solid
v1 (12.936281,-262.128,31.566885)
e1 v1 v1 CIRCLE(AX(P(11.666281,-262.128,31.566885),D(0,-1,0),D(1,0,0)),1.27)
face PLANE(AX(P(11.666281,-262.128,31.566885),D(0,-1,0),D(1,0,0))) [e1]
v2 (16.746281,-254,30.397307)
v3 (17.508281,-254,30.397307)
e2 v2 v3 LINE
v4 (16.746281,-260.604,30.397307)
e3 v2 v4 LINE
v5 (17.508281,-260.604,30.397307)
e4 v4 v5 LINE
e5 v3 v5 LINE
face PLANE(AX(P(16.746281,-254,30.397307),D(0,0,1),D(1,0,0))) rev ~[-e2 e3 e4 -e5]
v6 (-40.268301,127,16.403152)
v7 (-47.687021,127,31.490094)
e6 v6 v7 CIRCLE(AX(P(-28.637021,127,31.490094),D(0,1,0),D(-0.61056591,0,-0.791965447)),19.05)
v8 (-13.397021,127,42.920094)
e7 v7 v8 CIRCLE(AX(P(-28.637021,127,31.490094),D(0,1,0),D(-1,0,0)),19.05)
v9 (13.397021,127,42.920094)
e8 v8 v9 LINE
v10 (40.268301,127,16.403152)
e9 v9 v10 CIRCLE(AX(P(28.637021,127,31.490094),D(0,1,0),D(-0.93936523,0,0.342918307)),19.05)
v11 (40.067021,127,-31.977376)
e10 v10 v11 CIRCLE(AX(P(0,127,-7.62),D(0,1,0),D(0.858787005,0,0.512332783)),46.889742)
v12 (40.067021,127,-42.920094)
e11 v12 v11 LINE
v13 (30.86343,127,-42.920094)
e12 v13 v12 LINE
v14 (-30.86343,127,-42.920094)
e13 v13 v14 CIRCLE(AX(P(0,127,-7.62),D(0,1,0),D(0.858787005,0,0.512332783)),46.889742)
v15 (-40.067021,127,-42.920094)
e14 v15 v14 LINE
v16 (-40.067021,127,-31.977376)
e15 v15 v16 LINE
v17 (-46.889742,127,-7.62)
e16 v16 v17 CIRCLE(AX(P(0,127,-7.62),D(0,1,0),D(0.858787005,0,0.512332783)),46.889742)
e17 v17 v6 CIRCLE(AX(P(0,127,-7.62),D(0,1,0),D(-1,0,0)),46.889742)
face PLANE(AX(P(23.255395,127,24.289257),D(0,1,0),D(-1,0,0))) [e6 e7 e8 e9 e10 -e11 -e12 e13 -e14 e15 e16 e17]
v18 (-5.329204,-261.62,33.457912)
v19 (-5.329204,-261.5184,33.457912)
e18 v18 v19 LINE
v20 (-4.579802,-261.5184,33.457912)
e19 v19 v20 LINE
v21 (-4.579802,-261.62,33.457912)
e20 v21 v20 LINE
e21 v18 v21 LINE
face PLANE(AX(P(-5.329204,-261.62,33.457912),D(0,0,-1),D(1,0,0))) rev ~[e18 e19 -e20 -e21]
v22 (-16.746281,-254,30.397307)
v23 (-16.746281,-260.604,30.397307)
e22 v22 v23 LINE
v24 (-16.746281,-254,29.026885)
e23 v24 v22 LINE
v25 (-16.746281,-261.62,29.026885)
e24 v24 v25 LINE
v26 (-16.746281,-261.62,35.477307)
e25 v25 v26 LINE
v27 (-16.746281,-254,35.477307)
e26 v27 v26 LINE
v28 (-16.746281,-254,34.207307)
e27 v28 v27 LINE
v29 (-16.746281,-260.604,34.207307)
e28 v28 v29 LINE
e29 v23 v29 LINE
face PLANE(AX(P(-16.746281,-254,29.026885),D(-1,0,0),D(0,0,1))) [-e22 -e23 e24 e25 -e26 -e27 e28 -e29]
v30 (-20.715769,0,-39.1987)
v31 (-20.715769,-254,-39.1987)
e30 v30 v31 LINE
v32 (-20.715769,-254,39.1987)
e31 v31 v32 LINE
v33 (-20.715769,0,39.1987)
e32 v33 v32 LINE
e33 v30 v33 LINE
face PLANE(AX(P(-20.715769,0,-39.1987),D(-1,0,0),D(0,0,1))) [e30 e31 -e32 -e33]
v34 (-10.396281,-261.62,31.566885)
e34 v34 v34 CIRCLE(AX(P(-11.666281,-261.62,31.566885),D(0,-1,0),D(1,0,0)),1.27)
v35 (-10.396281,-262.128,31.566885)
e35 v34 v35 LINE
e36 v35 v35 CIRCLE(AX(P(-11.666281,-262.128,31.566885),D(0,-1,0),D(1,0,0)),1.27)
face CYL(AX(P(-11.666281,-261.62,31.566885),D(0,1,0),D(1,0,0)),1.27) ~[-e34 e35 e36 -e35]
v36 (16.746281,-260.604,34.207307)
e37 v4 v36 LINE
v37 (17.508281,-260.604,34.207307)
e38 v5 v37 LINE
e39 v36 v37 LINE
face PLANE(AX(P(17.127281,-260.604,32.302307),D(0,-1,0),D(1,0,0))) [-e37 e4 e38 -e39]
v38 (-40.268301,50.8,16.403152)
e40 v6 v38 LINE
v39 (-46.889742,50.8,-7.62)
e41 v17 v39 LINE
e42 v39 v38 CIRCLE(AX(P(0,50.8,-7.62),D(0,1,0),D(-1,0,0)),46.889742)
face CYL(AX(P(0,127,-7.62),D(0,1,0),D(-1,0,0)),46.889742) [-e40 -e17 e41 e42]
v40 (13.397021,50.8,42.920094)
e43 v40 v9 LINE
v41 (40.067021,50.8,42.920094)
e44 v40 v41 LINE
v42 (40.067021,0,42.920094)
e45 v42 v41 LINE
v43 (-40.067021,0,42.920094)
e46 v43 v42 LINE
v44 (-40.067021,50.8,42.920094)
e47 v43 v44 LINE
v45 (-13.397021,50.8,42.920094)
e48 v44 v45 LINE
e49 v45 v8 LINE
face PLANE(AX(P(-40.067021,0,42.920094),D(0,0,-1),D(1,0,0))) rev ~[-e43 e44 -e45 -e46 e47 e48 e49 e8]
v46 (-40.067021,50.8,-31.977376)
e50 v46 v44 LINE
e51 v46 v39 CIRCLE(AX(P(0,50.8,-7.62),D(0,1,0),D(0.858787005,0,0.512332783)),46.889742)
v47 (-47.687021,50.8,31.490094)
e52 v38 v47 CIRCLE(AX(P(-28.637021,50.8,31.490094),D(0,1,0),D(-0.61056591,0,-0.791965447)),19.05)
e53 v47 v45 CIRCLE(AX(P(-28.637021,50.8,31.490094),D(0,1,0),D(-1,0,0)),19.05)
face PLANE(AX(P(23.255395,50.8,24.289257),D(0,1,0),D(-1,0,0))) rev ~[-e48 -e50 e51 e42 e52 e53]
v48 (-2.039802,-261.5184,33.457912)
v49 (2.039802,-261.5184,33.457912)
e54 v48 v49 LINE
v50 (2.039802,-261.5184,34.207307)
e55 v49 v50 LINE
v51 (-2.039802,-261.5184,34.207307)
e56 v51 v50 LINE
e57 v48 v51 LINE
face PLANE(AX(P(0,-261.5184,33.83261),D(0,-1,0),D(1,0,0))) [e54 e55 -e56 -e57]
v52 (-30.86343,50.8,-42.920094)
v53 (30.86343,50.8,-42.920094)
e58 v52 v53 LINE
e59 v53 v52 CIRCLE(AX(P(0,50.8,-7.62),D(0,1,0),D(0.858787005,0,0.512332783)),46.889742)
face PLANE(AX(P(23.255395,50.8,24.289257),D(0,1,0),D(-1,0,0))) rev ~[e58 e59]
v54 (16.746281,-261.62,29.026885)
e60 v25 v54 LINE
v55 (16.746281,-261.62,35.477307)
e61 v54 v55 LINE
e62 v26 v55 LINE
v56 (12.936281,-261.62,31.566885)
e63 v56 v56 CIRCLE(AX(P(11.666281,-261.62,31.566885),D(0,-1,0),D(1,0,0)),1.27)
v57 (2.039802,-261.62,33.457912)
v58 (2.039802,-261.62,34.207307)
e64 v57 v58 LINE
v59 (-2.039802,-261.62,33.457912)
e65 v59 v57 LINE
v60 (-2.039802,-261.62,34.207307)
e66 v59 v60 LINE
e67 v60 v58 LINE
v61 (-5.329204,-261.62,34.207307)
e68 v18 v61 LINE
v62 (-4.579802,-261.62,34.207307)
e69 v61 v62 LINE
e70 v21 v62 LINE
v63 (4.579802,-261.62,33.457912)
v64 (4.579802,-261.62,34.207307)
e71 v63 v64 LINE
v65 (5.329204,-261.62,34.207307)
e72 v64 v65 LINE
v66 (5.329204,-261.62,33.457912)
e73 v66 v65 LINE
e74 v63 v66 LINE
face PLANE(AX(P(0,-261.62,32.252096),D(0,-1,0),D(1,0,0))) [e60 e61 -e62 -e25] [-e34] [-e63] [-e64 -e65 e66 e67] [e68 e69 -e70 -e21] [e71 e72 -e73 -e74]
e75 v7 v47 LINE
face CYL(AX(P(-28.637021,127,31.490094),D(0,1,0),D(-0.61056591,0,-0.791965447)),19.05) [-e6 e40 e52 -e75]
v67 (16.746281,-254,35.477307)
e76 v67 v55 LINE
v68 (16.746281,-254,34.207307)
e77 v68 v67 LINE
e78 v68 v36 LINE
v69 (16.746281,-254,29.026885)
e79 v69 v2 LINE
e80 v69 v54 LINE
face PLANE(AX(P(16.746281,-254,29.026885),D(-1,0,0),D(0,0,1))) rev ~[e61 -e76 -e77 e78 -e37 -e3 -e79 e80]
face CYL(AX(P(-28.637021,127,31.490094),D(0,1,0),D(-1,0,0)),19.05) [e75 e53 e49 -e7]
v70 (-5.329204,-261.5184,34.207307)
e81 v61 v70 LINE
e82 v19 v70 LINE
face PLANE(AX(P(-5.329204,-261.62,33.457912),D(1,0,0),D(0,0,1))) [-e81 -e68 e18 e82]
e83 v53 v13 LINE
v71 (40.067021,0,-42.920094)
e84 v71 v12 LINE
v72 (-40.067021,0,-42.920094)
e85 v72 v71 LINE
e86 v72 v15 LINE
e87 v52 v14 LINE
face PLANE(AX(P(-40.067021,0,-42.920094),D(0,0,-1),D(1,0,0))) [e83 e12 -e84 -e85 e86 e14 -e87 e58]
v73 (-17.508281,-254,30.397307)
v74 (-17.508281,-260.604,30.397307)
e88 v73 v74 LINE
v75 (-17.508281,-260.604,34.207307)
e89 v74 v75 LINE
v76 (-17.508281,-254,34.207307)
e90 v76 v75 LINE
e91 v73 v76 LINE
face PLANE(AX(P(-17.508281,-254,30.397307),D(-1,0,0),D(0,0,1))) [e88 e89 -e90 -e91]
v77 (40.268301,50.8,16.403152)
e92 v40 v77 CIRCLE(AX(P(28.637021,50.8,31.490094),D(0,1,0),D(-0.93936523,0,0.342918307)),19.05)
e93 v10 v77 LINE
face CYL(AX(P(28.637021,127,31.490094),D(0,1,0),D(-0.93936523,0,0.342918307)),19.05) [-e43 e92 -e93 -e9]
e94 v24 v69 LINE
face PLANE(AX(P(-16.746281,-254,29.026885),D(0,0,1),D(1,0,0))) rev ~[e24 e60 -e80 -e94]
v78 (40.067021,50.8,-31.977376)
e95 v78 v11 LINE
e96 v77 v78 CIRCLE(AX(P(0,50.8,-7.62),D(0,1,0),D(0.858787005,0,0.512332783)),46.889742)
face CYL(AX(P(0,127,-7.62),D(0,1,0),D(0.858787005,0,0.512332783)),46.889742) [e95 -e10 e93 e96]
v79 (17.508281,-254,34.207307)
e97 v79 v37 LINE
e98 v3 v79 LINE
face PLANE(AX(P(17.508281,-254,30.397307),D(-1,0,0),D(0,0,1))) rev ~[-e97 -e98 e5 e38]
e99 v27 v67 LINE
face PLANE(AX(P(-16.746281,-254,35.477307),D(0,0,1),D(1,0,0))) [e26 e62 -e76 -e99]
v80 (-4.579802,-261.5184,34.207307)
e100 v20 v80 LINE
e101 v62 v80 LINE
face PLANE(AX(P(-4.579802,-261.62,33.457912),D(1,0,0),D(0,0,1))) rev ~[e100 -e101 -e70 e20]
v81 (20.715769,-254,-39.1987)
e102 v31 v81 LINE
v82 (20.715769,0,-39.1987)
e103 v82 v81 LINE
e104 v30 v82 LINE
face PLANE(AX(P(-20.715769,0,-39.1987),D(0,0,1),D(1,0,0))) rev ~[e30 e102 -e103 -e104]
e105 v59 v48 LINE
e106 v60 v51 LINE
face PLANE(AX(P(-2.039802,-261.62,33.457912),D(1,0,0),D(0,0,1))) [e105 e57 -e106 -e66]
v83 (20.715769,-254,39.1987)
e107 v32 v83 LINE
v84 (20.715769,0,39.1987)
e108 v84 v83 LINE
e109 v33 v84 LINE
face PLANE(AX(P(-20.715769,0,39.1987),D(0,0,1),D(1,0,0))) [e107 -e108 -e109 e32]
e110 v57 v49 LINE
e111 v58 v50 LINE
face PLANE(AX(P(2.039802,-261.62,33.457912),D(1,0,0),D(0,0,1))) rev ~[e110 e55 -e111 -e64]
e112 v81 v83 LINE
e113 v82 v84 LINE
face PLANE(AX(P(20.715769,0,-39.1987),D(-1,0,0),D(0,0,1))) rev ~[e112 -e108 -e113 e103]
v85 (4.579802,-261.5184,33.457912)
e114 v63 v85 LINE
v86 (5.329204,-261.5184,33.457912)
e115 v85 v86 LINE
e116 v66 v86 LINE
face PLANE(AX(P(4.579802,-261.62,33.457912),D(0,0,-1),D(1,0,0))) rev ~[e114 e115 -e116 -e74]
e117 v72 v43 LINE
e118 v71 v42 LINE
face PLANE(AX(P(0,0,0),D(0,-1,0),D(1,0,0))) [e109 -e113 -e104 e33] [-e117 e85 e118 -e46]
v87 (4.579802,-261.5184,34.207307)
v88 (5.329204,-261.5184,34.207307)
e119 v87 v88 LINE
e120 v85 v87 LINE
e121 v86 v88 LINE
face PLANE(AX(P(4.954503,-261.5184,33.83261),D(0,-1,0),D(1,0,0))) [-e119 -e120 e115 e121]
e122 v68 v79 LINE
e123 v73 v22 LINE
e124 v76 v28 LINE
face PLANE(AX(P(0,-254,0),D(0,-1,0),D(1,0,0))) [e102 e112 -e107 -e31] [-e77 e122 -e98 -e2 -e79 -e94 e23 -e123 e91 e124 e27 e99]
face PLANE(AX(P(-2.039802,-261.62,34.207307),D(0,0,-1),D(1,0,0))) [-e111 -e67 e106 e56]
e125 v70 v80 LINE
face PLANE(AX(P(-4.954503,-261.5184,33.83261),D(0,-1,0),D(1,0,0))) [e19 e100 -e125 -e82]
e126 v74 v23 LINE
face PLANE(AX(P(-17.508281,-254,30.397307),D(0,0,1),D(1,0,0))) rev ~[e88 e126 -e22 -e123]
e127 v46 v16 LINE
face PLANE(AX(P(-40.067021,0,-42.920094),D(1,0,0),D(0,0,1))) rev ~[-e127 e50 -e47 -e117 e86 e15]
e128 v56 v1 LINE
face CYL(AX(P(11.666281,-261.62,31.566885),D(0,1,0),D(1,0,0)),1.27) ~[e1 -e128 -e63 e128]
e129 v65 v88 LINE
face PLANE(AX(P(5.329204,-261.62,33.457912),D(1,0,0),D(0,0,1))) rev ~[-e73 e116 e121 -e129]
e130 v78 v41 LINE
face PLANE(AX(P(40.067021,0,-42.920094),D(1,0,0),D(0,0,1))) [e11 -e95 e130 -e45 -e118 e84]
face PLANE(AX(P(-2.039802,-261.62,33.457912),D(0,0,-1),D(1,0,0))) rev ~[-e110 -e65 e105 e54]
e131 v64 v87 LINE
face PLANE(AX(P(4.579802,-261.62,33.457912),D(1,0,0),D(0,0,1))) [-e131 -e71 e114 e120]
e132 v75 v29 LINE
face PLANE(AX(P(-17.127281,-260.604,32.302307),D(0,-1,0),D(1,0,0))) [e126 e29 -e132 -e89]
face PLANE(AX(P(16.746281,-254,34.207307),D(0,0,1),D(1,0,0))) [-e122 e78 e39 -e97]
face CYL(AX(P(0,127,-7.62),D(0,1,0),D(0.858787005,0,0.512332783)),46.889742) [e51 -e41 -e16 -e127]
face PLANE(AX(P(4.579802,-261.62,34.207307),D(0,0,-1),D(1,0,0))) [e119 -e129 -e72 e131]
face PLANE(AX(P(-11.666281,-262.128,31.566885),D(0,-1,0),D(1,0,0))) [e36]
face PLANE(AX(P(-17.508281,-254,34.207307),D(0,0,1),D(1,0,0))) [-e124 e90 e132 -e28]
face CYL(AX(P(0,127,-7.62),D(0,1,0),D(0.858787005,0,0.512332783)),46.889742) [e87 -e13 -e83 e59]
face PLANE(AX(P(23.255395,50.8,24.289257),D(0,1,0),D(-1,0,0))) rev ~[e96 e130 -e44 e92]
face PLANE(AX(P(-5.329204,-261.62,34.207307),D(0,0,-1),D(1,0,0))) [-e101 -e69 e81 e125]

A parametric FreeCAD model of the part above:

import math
import FreeCAD as App
import Part
import Sketcher

V = App.Vector
Q = App.Units.Quantity


def add_polygon(sketch, points):
    """Adds a closed chain of lines whose ends are joined by coincident constraints."""
    first, n = sketch.GeometryCount, len(points)
    for a, b in zip(points, points[1:] + points[:1]):
        sketch.addGeometry(Part.LineSegment(App.Vector(*a, 0), App.Vector(*b, 0)), False)
    for i in range(n):
        sketch.addConstraint(Sketcher.Constraint("Coincident", first + i, 2, first + (i + 1) % n, 1))

doc = App.newDocument("Part")
body = doc.addObject("PartDesign::Body", "Body")

sketch1 = body.newObject("Sketcher::SketchObject", "Sketch")
sketch1.AttachmentSupport = (doc.getObject("XZ_Plane"), [""])
sketch1.MapMode = "FlatFace"
add_polygon(sketch1, [(-20.715769, 39.1987), (-20.715769, -39.1987), (20.715769, -39.1987), (20.715769, 39.1987)])
sketch1.addConstraint([
    Sketcher.Constraint("Vertical", 0),
    Sketcher.Constraint("Horizontal", 1),
    Sketcher.Constraint("Vertical", 2),
    Sketcher.Constraint("Horizontal", 3),
    Sketcher.Constraint("Symmetric", 0, 2, 2, 2, -1, 1),
    Sketcher.Constraint("DistanceY", 0, 2, 0, 1, Q("78.397401 mm")),
    Sketcher.Constraint("DistanceX", 1, 1, 1, 2, Q("41.431539 mm")),
])
pad1 = body.newObject("PartDesign::Pad", "Pad")
pad1.Profile = sketch1
pad1.Length = Q("10 in")

sketch2 = body.newObject("Sketcher::SketchObject", "Sketch001")
sketch2.AttachmentSupport = (doc.getObject("XZ_Plane"), [""])
sketch2.MapMode = "FlatFace"
add_polygon(sketch2, [(-40.067021, 42.920094), (-40.067021, -42.920094), (40.067021, -42.920094), (40.067021, 42.920094)])
sketch2.addConstraint([
    Sketcher.Constraint("Vertical", 0),
    Sketcher.Constraint("Horizontal", 1),
    Sketcher.Constraint("Vertical", 2),
    Sketcher.Constraint("Horizontal", 3),
    Sketcher.Constraint("Symmetric", 0, 2, 2, 2, -1, 1),
    Sketcher.Constraint("DistanceX", 1, 1, 1, 2, Q("80.134042 mm")),
    Sketcher.Constraint("DistanceY", 0, 2, 0, 1, Q("85.840188 mm")),
])
pad2 = body.newObject("PartDesign::Pad", "Pad001")
pad2.Profile = sketch2
pad2.Length = Q("5 in")
pad2.Reversed = True

sketch3 = body.newObject("Sketcher::SketchObject", "Sketch002")
sketch3.AttachmentSupport = (doc.getObject("XZ_Plane"), [""])
sketch3.MapMode = "FlatFace"
sketch3.AttachmentOffset = App.Placement(V(0, 0, 10 * 25.4), App.Rotation())
add_polygon(sketch3, [(-16.746281, 35.477307), (-16.746281, 29.026885), (16.746281, 29.026885), (16.746281, 35.477307)])
sketch3.addConstraint([
    Sketcher.Constraint("Vertical", 0),
    Sketcher.Constraint("Horizontal", 1),
    Sketcher.Constraint("Vertical", 2),
    Sketcher.Constraint("Horizontal", 3),
    Sketcher.Constraint("DistanceX", 1, 1, 1, 2, Q("33.492561 mm")),
    Sketcher.Constraint("DistanceY", 0, 2, 0, 1, Q("6.450422 mm")),
    Sketcher.Constraint("DistanceX", 0, 2, -1, 1, Q("16.746281 mm")),
    Sketcher.Constraint("DistanceY", -1, 1, 0, 2, Q("29.026885 mm")),
])
pad3 = body.newObject("PartDesign::Pad", "Pad002")
pad3.Profile = sketch3
pad3.Length = Q("0.3 in")

sketch4 = body.newObject("Sketcher::SketchObject", "Sketch003")
sketch4.AttachmentSupport = (doc.getObject("XZ_Plane"), [""])
sketch4.MapMode = "FlatFace"
sketch4.AttachmentOffset = App.Placement(V(0, 0, 10.3 * 25.4), App.Rotation())
add_polygon(sketch4, [(-2.039802, 34.207307), (-2.039802, 33.457912), (2.039802, 33.457912), (2.039802, 34.207307)])
add_polygon(sketch4, [(4.579802, 34.207307), (4.579802, 33.457912), (5.329204, 33.457912), (5.329204, 34.207307)])
add_polygon(sketch4, [(-5.329204, 34.207307), (-5.329204, 33.457912), (-4.579802, 33.457912), (-4.579802, 34.207307)])
sketch4.addConstraint([
    Sketcher.Constraint("Vertical", 0),
    Sketcher.Constraint("Horizontal", 1),
    Sketcher.Constraint("Vertical", 2),
    Sketcher.Constraint("Horizontal", 3),
    Sketcher.Constraint("Vertical", 4),
    Sketcher.Constraint("Horizontal", 5),
    Sketcher.Constraint("Vertical", 6),
    Sketcher.Constraint("Horizontal", 7),
    Sketcher.Constraint("Vertical", 8),
    Sketcher.Constraint("Horizontal", 9),
    Sketcher.Constraint("Vertical", 10),
    Sketcher.Constraint("Horizontal", 11),
    Sketcher.Constraint("Symmetric", 5, 2, 8, 2, -2),
    Sketcher.Constraint("Symmetric", 7, 2, 10, 2, -2),
    Sketcher.Constraint("Horizontal", 1, 2, 4, 2),
    Sketcher.Constraint("Horizontal", 3, 2, 6, 2),
    Sketcher.Constraint("DistanceX", 1, 2, 4, 2, Q("0.1 in")),
    Sketcher.Constraint("DistanceX", 9, 2, 0, 2, Q("0.1 in")),
    Sketcher.Constraint("DistanceX", 5, 1, 5, 2, Q("0.749402 mm")),
    Sketcher.Constraint("DistanceX", 1, 1, 1, 2, Q("4.079605 mm")),
    Sketcher.Constraint("DistanceY", 0, 2, 0, 1, Q("0.749394 mm")),
    Sketcher.Constraint("DistanceY", -1, 1, 0, 2, Q("33.457912 mm")),
])
pocket1 = body.newObject("PartDesign::Pocket", "Pocket")
pocket1.Profile = sketch4
pocket1.Length = Q("0.004 in")

sketch5 = body.newObject("Sketcher::SketchObject", "Sketch004")
sketch5.AttachmentSupport = (doc.getObject("XZ_Plane"), [""])
sketch5.MapMode = "FlatFace"
sketch5.AttachmentOffset = App.Placement(V(0, 0, 10.3 * 25.4), App.Rotation())
sketch5.addGeometry([
    Part.Circle(V(-11.666281, 31.566885, 0), V(0, 0, 1), 1.27),
    Part.Circle(V(11.666281, 31.566885, 0), V(0, 0, 1), 1.27),
], False)
sketch5.addConstraint([
    Sketcher.Constraint("Equal", 0, 1),
    Sketcher.Constraint("Symmetric", 0, 3, 1, 3, -2),
    Sketcher.Constraint("Diameter", 0, Q("0.1 in")),
    Sketcher.Constraint("DistanceX", 0, 3, -1, 1, Q("11.666281 mm")),
    Sketcher.Constraint("DistanceY", -1, 1, 0, 3, Q("31.566885 mm")),
])
pad4 = body.newObject("PartDesign::Pad", "Pad003")
pad4.Profile = sketch5
pad4.Length = Q("0.02 in")

sketch6 = body.newObject("Sketcher::SketchObject", "Sketch005")
sketch6.AttachmentSupport = (doc.getObject("XZ_Plane"), [""])
sketch6.MapMode = "FlatFace"
sketch6.AttachmentOffset = App.Placement(V(0, 0, 10 * 25.4), App.Rotation())
add_polygon(sketch6, [(-17.508281, 34.207307), (-17.508281, 30.397307), (-16.746281, 30.397307), (-16.746281, 34.207307)])
add_polygon(sketch6, [(16.746281, 34.207307), (16.746281, 30.397307), (17.508281, 30.397307), (17.508281, 34.207307)])
sketch6.addConstraint([
    Sketcher.Constraint("Vertical", 0),
    Sketcher.Constraint("Horizontal", 1),
    Sketcher.Constraint("Vertical", 2),
    Sketcher.Constraint("Horizontal", 3),
    Sketcher.Constraint("Vertical", 4),
    Sketcher.Constraint("Horizontal", 5),
    Sketcher.Constraint("Vertical", 6),
    Sketcher.Constraint("Horizontal", 7),
    Sketcher.Constraint("Symmetric", 1, 2, 4, 2, -2),
    Sketcher.Constraint("Symmetric", 3, 2, 6, 2, -2),
    Sketcher.Constraint("DistanceX", 1, 1, 1, 2, Q("0.03 in")),
    Sketcher.Constraint("DistanceY", 0, 2, 0, 1, Q("0.15 in")),
    Sketcher.Constraint("DistanceX", 0, 2, -1, 1, Q("17.508281 mm")),
    Sketcher.Constraint("DistanceY", -1, 1, 0, 2, Q("30.397307 mm")),
])
pad5 = body.newObject("PartDesign::Pad", "Pad004")
pad5.Profile = sketch6
pad5.Length = Q("0.26 in")

sketch7 = body.newObject("Sketcher::SketchObject", "Sketch006")
sketch7.AttachmentSupport = (doc.getObject("XZ_Plane"), [""])
sketch7.MapMode = "FlatFace"
sketch7.AttachmentOffset = App.Placement(V(0, 0, -5 * 25.4), App.Rotation())
sketch7.addGeometry([
    Part.ArcOfCircle(Part.Circle(V(0, -7.62, 0), V(0, 0, 1), 46.889742), math.radians(180), math.radians(390.819341)),
    Part.ArcOfCircle(Part.Circle(V(0, -7.62, 0), V(0, 0, 1), 46.889742), math.radians(149.180659), math.radians(180)),
    Part.ArcOfCircle(Part.Circle(V(-28.637021, 31.490094, 0), V(0, 0, 1), 19.05), math.radians(180), math.radians(232.369567)),
    Part.ArcOfCircle(Part.Circle(V(-28.637021, 31.490094, 0), V(0, 0, 1), 19.05), math.radians(20.054773), math.radians(180)),
    Part.ArcOfCircle(Part.Circle(V(0, -7.62, 0), V(0, 0, 1), 46.889742), math.radians(76.756319), math.radians(103.243681)),
    Part.ArcOfCircle(Part.Circle(V(28.637021, 31.490094, 0), V(0, 0, 1), 19.05), math.radians(-52.369567), math.radians(159.945227)),
], False)
sketch7.addConstraint([
    Sketcher.Constraint("Tangent", 0, 1, 1, 2),
    Sketcher.Constraint("Coincident", 1, 1, 2, 2),
    Sketcher.Constraint("Tangent", 2, 1, 3, 2),
    Sketcher.Constraint("Coincident", 3, 1, 4, 2),
    Sketcher.Constraint("Coincident", 4, 1, 5, 2),
    Sketcher.Constraint("Coincident", 5, 1, 0, 2),
    Sketcher.Constraint("Coincident", 4, 3, 0, 3),
    Sketcher.Constraint("Equal", 0, 1),
    Sketcher.Constraint("Equal", 2, 3),
    Sketcher.Constraint("Equal", 1, 4),
    Sketcher.Constraint("Equal", 3, 5),
    Sketcher.Constraint("Symmetric", 2, 3, 5, 3, -2),
    Sketcher.Constraint("PointOnObject", 0, 3, -2),
    Sketcher.Constraint("Horizontal", 4, 3, 0, 1),
    Sketcher.Constraint("Horizontal", 5, 3, 2, 1),
    Sketcher.Constraint("Radius", 2, Q("0.75 in")),
    Sketcher.Constraint("DistanceY", 0, 3, -1, 1, Q("0.3 in")),
    Sketcher.Constraint("Radius", 0, Q("46.889742 mm")),
    Sketcher.Constraint("DistanceX", 1, 1, -1, 1, Q("40.268301 mm")),
    Sketcher.Constraint("DistanceX", 2, 3, -1, 1, Q("28.637021 mm")),
])
pad6 = body.newObject("PartDesign::Pad", "Pad005")
pad6.Profile = sketch7
pad6.Length = Q("3 in")

doc.recompute()
